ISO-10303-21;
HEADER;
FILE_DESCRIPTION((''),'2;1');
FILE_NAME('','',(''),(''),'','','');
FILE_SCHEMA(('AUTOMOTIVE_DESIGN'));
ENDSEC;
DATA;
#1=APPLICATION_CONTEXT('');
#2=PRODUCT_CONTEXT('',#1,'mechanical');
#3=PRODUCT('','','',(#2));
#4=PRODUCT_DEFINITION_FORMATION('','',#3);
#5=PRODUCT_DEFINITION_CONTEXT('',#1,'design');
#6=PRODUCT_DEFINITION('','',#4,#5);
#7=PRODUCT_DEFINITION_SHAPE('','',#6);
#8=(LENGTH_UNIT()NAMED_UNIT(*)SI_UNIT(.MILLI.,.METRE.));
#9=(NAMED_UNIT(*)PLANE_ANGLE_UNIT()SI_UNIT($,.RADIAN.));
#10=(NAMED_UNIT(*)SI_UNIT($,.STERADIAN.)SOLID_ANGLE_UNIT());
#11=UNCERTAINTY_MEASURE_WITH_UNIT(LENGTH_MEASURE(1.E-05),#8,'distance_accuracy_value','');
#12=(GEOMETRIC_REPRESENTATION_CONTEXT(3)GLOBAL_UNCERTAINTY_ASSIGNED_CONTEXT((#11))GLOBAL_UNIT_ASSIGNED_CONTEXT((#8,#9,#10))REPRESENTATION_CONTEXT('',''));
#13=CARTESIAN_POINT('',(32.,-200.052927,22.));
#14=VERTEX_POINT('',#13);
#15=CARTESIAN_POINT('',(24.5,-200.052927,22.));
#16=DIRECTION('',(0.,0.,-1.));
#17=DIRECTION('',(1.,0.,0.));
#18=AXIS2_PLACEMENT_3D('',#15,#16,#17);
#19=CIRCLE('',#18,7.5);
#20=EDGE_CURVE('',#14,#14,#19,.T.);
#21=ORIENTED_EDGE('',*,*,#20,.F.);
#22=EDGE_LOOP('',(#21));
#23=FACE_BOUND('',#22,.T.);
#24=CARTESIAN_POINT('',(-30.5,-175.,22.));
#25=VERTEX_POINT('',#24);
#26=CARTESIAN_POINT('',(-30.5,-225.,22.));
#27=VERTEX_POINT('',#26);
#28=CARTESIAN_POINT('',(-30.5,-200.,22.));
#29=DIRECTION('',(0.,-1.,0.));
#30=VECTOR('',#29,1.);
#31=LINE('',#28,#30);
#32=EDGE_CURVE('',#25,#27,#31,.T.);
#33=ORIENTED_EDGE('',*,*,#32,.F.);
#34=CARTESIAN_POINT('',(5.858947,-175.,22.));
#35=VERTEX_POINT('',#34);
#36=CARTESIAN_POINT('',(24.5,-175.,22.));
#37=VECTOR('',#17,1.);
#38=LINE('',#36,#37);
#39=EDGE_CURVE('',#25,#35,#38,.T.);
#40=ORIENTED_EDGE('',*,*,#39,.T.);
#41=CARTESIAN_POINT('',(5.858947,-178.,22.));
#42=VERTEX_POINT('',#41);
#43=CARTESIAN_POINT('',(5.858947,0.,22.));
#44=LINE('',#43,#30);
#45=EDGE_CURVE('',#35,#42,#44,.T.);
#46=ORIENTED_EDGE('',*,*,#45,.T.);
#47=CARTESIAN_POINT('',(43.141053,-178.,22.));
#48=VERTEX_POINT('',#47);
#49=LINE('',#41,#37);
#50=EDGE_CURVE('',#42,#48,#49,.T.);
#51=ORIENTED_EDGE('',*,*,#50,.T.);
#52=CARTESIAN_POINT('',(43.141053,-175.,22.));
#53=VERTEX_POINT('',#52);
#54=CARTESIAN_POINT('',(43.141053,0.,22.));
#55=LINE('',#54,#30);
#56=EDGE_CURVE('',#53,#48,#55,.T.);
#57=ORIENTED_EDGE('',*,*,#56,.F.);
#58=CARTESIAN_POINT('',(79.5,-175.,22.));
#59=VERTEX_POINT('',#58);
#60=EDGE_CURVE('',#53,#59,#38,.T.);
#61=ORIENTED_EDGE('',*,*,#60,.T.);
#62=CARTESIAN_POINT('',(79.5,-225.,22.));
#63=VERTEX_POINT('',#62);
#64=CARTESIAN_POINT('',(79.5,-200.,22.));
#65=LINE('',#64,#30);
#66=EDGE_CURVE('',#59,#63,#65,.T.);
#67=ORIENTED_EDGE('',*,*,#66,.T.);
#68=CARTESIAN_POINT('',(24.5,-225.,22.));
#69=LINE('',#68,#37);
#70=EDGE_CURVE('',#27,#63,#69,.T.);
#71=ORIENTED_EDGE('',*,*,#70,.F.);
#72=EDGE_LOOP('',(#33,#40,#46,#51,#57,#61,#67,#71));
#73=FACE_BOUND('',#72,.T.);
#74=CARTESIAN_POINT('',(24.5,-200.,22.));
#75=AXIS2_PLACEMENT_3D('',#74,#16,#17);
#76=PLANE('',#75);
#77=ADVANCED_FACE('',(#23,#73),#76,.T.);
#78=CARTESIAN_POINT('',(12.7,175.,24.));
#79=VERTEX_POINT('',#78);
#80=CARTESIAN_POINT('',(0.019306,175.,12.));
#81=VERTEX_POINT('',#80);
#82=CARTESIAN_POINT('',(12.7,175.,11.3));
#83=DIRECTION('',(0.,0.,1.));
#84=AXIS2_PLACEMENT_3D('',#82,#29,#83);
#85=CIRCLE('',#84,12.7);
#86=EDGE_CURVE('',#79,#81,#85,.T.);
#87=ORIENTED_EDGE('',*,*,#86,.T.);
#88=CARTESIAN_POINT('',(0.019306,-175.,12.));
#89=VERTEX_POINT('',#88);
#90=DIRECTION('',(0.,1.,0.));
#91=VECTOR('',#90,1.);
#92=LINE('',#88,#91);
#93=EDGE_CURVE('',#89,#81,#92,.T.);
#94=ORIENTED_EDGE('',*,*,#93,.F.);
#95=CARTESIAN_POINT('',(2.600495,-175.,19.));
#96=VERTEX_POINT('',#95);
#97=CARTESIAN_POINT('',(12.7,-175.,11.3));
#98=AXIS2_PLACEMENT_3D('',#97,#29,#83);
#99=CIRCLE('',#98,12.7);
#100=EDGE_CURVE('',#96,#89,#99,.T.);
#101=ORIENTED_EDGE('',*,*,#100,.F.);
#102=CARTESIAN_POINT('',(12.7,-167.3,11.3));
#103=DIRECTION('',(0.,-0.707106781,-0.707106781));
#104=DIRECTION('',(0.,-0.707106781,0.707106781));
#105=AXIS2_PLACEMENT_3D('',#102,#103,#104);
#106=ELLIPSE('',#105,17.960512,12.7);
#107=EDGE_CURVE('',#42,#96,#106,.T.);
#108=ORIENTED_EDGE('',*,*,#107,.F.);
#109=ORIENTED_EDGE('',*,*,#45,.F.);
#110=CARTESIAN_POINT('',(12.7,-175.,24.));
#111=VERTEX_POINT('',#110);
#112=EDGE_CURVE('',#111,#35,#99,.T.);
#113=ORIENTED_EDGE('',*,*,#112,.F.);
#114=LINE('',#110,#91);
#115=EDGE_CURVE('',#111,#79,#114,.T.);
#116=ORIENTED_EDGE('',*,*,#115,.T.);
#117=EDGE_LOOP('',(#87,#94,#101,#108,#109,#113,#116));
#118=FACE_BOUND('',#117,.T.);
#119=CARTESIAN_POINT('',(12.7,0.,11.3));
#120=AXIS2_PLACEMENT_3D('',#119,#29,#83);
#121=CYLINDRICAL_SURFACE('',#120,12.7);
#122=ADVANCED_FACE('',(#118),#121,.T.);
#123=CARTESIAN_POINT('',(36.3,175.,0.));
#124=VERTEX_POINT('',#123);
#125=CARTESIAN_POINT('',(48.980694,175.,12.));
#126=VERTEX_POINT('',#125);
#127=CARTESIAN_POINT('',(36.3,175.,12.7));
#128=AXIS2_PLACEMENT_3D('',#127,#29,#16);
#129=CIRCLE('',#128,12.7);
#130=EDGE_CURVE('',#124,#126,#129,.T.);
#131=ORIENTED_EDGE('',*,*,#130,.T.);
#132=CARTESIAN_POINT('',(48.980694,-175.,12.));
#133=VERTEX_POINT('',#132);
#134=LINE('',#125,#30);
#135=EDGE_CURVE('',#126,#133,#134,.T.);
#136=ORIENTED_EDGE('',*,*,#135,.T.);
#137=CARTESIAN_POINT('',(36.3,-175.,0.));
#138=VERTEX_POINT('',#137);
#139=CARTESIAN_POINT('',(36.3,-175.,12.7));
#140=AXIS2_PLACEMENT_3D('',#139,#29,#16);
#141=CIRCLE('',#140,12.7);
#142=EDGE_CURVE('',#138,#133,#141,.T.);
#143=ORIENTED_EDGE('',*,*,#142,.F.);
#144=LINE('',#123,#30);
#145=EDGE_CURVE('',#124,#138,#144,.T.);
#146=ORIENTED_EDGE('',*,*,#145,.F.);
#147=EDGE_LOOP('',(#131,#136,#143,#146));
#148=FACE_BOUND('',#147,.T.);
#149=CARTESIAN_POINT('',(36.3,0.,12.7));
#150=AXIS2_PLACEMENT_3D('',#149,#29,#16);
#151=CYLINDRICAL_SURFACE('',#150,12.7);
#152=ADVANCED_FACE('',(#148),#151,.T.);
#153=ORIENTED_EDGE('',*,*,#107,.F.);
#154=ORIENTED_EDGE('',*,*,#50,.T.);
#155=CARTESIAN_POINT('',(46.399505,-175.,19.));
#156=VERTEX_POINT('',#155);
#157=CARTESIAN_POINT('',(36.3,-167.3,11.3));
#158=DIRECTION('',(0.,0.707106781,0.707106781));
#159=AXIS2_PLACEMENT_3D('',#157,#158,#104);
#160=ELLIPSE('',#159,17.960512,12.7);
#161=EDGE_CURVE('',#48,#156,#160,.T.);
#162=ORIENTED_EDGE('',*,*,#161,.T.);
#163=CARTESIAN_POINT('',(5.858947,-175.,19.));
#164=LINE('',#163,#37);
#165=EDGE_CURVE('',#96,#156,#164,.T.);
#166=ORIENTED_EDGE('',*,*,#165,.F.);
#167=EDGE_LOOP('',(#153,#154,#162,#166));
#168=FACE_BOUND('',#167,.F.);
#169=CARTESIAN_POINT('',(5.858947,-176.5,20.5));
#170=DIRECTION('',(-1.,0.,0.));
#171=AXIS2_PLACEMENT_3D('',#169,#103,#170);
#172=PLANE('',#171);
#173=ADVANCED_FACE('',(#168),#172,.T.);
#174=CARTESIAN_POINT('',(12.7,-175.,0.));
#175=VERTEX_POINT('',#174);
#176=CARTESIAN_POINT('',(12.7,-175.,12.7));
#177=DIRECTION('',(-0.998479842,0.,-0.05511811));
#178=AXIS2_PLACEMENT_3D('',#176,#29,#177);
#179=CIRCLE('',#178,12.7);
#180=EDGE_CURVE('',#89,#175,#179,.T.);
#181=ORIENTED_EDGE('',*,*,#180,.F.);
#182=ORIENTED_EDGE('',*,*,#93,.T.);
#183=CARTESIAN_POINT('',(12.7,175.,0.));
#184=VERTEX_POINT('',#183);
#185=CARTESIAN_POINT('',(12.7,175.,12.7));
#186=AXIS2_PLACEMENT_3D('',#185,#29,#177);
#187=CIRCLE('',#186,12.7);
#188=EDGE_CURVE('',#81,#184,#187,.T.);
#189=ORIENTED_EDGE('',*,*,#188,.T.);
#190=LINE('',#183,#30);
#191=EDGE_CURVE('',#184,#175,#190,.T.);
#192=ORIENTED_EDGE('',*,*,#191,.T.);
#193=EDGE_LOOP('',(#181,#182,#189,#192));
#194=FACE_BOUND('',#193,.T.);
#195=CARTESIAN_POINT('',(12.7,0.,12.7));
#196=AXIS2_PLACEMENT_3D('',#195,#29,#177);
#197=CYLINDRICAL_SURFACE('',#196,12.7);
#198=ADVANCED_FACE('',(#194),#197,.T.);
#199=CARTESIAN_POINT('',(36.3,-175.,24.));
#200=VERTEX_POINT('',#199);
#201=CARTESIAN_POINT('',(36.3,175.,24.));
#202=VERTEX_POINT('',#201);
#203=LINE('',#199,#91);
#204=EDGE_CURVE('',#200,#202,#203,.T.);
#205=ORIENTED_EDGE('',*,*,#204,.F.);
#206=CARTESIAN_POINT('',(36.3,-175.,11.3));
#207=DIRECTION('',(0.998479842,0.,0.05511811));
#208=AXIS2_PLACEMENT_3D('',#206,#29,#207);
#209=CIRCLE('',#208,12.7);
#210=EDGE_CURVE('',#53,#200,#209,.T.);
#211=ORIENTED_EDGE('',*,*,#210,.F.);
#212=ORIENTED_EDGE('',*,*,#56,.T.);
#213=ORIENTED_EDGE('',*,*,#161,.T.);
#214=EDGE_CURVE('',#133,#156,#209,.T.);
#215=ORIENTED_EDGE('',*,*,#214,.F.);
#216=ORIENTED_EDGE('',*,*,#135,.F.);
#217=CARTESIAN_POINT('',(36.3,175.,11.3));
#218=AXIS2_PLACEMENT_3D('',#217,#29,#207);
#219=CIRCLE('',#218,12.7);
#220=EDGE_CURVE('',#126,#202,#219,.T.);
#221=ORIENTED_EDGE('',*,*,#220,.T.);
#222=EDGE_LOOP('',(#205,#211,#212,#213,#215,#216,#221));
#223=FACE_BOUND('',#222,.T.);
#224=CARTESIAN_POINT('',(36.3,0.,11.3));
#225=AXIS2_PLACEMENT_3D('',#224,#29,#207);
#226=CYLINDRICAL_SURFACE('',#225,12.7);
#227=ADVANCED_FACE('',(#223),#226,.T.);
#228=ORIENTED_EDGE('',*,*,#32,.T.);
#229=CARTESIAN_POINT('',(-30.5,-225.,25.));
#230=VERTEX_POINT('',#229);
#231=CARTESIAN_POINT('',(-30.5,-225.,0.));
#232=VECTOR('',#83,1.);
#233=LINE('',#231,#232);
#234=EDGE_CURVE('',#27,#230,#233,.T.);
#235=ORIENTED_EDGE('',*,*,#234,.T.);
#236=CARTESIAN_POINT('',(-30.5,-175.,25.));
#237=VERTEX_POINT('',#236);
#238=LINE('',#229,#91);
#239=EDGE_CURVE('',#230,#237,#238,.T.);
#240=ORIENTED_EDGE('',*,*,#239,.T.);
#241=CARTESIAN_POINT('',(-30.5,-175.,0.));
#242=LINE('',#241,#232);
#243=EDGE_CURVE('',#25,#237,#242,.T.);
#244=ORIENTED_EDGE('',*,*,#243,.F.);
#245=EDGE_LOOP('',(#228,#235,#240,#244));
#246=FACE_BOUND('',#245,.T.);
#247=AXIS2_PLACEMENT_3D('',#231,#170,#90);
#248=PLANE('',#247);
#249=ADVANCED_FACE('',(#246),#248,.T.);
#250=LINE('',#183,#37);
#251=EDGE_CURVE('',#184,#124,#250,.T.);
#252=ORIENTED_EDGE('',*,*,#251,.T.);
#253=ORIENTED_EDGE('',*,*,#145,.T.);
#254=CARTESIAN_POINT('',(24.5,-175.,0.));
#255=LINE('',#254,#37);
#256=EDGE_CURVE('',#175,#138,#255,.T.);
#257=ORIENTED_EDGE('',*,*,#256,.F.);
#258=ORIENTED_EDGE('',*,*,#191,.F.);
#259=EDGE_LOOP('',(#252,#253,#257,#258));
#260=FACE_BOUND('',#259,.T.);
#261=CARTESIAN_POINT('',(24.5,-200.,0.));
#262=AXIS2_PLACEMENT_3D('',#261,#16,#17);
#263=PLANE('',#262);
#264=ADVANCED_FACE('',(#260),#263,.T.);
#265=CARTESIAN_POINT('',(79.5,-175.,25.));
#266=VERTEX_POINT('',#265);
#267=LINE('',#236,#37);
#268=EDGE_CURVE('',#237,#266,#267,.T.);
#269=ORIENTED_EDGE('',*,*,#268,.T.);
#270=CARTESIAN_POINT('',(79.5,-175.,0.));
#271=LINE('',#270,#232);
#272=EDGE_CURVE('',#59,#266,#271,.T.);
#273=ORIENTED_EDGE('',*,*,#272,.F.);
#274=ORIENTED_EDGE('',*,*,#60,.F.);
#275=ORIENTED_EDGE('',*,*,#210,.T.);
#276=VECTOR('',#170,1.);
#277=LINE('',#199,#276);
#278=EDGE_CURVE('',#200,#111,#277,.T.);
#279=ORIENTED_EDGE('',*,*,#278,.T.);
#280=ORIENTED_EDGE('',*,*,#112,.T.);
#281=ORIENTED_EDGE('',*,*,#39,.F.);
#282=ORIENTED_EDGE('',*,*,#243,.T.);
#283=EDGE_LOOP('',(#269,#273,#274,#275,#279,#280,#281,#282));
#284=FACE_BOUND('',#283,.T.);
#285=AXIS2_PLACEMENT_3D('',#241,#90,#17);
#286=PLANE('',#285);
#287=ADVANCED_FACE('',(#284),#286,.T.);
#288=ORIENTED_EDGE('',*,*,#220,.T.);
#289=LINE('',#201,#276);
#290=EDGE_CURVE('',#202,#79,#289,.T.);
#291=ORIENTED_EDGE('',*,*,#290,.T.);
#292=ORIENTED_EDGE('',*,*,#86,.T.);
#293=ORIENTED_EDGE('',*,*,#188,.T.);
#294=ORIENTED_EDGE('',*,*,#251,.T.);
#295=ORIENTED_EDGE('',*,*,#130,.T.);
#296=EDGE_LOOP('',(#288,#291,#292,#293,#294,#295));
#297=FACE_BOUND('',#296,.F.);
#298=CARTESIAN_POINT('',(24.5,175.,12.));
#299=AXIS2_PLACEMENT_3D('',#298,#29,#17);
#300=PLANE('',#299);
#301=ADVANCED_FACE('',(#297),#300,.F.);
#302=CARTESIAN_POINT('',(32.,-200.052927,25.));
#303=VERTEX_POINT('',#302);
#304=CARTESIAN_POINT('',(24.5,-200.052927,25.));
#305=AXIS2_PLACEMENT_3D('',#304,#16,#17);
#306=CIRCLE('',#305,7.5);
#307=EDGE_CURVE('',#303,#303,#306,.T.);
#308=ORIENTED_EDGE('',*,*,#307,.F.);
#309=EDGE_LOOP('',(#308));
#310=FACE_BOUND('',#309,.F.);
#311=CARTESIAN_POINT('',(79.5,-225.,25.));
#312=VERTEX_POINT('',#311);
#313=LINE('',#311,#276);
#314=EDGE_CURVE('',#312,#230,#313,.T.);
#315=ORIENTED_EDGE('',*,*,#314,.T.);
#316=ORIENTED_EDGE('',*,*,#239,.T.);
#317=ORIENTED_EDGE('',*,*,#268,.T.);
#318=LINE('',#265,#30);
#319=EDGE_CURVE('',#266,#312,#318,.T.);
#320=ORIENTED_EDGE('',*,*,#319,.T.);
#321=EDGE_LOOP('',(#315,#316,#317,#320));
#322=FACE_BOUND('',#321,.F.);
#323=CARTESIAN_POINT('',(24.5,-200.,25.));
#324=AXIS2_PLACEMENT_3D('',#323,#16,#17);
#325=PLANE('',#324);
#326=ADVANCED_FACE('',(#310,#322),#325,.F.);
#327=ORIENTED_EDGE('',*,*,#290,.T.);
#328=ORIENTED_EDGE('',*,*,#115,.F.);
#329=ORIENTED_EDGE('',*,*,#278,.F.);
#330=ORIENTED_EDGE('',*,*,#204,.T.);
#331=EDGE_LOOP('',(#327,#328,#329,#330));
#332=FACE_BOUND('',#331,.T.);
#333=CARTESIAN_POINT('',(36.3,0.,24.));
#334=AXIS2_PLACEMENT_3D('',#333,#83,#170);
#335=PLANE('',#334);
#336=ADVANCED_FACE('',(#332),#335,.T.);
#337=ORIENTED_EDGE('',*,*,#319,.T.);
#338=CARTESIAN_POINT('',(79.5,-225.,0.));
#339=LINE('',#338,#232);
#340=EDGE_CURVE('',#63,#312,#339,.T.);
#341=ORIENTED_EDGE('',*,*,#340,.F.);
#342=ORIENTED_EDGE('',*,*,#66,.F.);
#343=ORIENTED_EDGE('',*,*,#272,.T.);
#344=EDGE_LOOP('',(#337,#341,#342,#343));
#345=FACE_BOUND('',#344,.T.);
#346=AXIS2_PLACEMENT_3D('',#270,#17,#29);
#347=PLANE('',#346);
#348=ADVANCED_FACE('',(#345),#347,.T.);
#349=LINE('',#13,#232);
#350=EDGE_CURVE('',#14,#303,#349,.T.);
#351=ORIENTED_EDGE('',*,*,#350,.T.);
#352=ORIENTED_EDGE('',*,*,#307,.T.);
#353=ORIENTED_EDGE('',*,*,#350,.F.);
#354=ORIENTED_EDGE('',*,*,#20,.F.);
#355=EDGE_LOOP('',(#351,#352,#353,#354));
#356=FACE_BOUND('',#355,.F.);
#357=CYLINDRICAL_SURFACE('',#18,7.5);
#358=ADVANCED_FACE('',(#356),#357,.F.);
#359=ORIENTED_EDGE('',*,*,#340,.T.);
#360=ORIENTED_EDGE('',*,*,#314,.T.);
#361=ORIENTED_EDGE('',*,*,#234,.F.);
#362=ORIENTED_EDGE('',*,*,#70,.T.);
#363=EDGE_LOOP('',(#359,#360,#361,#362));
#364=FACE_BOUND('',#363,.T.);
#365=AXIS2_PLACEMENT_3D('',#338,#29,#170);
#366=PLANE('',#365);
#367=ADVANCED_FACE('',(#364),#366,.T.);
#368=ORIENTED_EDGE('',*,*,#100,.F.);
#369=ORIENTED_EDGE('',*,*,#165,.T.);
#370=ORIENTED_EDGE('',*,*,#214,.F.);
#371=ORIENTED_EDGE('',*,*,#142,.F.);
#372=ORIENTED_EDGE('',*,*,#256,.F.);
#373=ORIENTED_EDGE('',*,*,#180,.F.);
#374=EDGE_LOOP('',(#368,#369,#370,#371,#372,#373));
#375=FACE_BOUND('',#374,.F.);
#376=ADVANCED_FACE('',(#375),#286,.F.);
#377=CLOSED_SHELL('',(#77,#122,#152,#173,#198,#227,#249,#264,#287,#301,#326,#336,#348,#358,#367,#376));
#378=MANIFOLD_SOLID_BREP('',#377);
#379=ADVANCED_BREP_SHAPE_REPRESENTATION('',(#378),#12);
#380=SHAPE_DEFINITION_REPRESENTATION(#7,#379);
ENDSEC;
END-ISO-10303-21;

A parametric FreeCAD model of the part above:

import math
import FreeCAD as App
import Part
import Sketcher
from FreeCAD import Vector
Q = App.Units.Quantity


def edges_at(feature, points):
    """Names of the edges that pass closest to the given points."""
    edges = feature.Shape.Edges
    near = lambda p: min(range(len(edges)), key=lambda i: edges[i].distToShape(Part.Vertex(*p))[0])
    return sorted({f"Edge{near(p) + 1}" for p in points})


def add_polygon(sketch, points):
    """Adds a closed chain of lines whose ends are joined by coincident constraints."""
    first, n = sketch.GeometryCount, len(points)
    for a, b in zip(points, points[1:] + points[:1]):
        sketch.addGeometry(Part.LineSegment(App.Vector(*a, 0), App.Vector(*b, 0)), False)
    for i in range(n):
        sketch.addConstraint(Sketcher.Constraint("Coincident", first + i, 2, first + (i + 1) % n, 1))

doc = App.newDocument("Part")
body = doc.addObject("PartDesign::Body", "Body")

# Sketch on XZ plane
sketch1 = body.newObject("Sketcher::SketchObject", "Sketch")
sketch1.AttachmentSupport = (doc.getObject("XZ_Plane"), [""])
sketch1.MapMode = "FlatFace"
sketch1.addGeometry(Part.ArcOfCircle(Part.Circle(Vector(13, 13, 0), Vector(0, 0, 1), 13), math.radians(-177), math.radians(-90)), False)
sketch1.addGeometry(Part.LineSegment(Vector(13, 0, 0), Vector(36, 0, 0)), False)
sketch1.addGeometry(Part.ArcOfCircle(Part.Circle(Vector(36, 13, 0), Vector(0, 0, 1), 13), math.radians(-90), math.radians(-3)), False)
sketch1.addGeometry(Part.ArcOfCircle(Part.Circle(Vector(36, 11, 0), Vector(0, 0, 1), 13), math.radians(3), math.radians(90)), False)
sketch1.addGeometry(Part.LineSegment(Vector(36, 24, 0), Vector(13, 24, 0)), False)
sketch1.addGeometry(Part.ArcOfCircle(Part.Circle(Vector(13, 11, 0), Vector(0, 0, 1), 13), math.radians(90), math.radians(177)), False)
sketch1.addConstraint(Sketcher.Constraint("Tangent", 0, 2, 1, 1))
sketch1.addConstraint(Sketcher.Constraint("Tangent", 1, 2, 2, 1))
sketch1.addConstraint(Sketcher.Constraint("Coincident", 2, 2, 3, 1))
sketch1.addConstraint(Sketcher.Constraint("Tangent", 3, 2, 4, 1))
sketch1.addConstraint(Sketcher.Constraint("Tangent", 4, 2, 5, 1))
sketch1.addConstraint(Sketcher.Constraint("Coincident", 5, 2, 0, 1))
sketch1.addConstraint(Sketcher.Constraint("Horizontal", 1))
sketch1.addConstraint(Sketcher.Constraint("Horizontal", 4))
sketch1.addConstraint(Sketcher.Constraint("Equal", 0, 2))
sketch1.addConstraint(Sketcher.Constraint("Equal", 2, 3))
sketch1.addConstraint(Sketcher.Constraint("Equal", 3, 5))
sketch1.addConstraint(Sketcher.Constraint("PointOnObject", 0, 2, -1))
sketch1.addConstraint(Sketcher.Constraint("Horizontal", 2, 2, 5, 2))
sketch1.addConstraint(Sketcher.Constraint("Vertical", 2, 3, 3, 3))
sketch1.addConstraint(Sketcher.Constraint("Radius", 0, Q("12.7 mm")))
sketch1.addConstraint(Sketcher.Constraint("DistanceX", 1, 1, 1, 2, Q("23.6 mm")))
sketch1.addConstraint(Sketcher.Constraint("DistanceY", -1, 1, 2, 2, Q("12 mm")))
sketch1.addConstraint(Sketcher.Constraint("DistanceX", -1, 1, 0, 3, Q("12.7 mm")))
pad1 = body.newObject("PartDesign::Pad", "Pad")
pad1.Profile = sketch1
pad1.Length = 350
pad1.Midplane = True

# Sketch on XY plane
sketch2 = body.newObject("Sketcher::SketchObject", "Sketch001")
sketch2.AttachmentSupport = (doc.getObject("XY_Plane"), [""])
sketch2.MapMode = "FlatFace"
add_polygon(sketch2, [(80, -175), (80, -225), (-30, -225), (-30, -175)])  # lines 0-3
sketch2.addConstraint(Sketcher.Constraint("Vertical", 0))
sketch2.addConstraint(Sketcher.Constraint("Horizontal", 1))
sketch2.addConstraint(Sketcher.Constraint("Vertical", 2))
sketch2.addConstraint(Sketcher.Constraint("Horizontal", 3))
sketch2.addConstraint(Sketcher.Constraint("DistanceX", 1, 2, 1, 1, Q("110 mm")))
sketch2.addConstraint(Sketcher.Constraint("DistanceY", 0, 2, 0, 1, Q("50 mm")))
sketch2.addConstraint(Sketcher.Constraint("DistanceY", 0, 2, -1, 1, Q("225 mm")))
sketch2.addConstraint(Sketcher.Constraint("DistanceX", -1, 1, 0, 2, Q("79.5 mm")))
pad2 = body.newObject("PartDesign::Pad", "Pad001")
pad2.Profile = sketch2
pad2.Length = 25

# Sketch on XY plane
sketch3 = body.newObject("Sketcher::SketchObject", "Sketch002")
sketch3.AttachmentSupport = (doc.getObject("XY_Plane"), [""])
sketch3.MapMode = "FlatFace"
add_polygon(sketch3, [(-30, -225), (-30, -175), (80, -175), (80, -225)])  # lines 0-3
sketch3.addConstraint(Sketcher.Constraint("Vertical", 0))
sketch3.addConstraint(Sketcher.Constraint("Horizontal", 1))
sketch3.addConstraint(Sketcher.Constraint("Vertical", 2))
sketch3.addConstraint(Sketcher.Constraint("Horizontal", 3))
sketch3.addConstraint(Sketcher.Constraint("DistanceX", 1, 1, 1, 2, Q("110 mm")))
sketch3.addConstraint(Sketcher.Constraint("DistanceY", 0, 1, 0, 2, Q("50 mm")))
sketch3.addConstraint(Sketcher.Constraint("DistanceY", 0, 2, -1, 1, Q("175 mm")))
sketch3.addConstraint(Sketcher.Constraint("DistanceX", 0, 2, -1, 1, Q("30.5 mm")))
pocket1 = body.newObject("PartDesign::Pocket", "Pocket")
pocket1.Profile = sketch3
pocket1.Length = 22
pocket1.Reversed = True
doc.recompute()

chamfer = body.newObject("PartDesign::Chamfer", "Chamfer")
chamfer.Base = (pocket1, edges_at(pocket1, [(24.5, -175, 22)]))
chamfer.Size = 3

# Sketch on XY plane
sketch4 = body.newObject("Sketcher::SketchObject", "Sketch003")
sketch4.AttachmentSupport = (doc.getObject("XY_Plane"), [""])
sketch4.MapMode = "FlatFace"
sketch4.AttachmentOffset = App.Placement(Vector(0, 0, 22), App.Rotation())
sketch4.addGeometry(Part.Circle(Vector(24, -200, 0), Vector(0, 0, 1), 8), False)
sketch4.addConstraint(Sketcher.Constraint("Diameter", 0, Q("15 mm")))
sketch4.addConstraint(Sketcher.Constraint("DistanceX", -1, 1, 0, 3, Q("24.5 mm")))
sketch4.addConstraint(Sketcher.Constraint("DistanceY", 0, 3, -1, 1, Q("200.052927 mm")))
pocket2 = body.newObject("PartDesign::Pocket", "Pocket001")
pocket2.Profile = sketch4
pocket2.Length = 25
pocket2.Reversed = True

doc.recompute()
